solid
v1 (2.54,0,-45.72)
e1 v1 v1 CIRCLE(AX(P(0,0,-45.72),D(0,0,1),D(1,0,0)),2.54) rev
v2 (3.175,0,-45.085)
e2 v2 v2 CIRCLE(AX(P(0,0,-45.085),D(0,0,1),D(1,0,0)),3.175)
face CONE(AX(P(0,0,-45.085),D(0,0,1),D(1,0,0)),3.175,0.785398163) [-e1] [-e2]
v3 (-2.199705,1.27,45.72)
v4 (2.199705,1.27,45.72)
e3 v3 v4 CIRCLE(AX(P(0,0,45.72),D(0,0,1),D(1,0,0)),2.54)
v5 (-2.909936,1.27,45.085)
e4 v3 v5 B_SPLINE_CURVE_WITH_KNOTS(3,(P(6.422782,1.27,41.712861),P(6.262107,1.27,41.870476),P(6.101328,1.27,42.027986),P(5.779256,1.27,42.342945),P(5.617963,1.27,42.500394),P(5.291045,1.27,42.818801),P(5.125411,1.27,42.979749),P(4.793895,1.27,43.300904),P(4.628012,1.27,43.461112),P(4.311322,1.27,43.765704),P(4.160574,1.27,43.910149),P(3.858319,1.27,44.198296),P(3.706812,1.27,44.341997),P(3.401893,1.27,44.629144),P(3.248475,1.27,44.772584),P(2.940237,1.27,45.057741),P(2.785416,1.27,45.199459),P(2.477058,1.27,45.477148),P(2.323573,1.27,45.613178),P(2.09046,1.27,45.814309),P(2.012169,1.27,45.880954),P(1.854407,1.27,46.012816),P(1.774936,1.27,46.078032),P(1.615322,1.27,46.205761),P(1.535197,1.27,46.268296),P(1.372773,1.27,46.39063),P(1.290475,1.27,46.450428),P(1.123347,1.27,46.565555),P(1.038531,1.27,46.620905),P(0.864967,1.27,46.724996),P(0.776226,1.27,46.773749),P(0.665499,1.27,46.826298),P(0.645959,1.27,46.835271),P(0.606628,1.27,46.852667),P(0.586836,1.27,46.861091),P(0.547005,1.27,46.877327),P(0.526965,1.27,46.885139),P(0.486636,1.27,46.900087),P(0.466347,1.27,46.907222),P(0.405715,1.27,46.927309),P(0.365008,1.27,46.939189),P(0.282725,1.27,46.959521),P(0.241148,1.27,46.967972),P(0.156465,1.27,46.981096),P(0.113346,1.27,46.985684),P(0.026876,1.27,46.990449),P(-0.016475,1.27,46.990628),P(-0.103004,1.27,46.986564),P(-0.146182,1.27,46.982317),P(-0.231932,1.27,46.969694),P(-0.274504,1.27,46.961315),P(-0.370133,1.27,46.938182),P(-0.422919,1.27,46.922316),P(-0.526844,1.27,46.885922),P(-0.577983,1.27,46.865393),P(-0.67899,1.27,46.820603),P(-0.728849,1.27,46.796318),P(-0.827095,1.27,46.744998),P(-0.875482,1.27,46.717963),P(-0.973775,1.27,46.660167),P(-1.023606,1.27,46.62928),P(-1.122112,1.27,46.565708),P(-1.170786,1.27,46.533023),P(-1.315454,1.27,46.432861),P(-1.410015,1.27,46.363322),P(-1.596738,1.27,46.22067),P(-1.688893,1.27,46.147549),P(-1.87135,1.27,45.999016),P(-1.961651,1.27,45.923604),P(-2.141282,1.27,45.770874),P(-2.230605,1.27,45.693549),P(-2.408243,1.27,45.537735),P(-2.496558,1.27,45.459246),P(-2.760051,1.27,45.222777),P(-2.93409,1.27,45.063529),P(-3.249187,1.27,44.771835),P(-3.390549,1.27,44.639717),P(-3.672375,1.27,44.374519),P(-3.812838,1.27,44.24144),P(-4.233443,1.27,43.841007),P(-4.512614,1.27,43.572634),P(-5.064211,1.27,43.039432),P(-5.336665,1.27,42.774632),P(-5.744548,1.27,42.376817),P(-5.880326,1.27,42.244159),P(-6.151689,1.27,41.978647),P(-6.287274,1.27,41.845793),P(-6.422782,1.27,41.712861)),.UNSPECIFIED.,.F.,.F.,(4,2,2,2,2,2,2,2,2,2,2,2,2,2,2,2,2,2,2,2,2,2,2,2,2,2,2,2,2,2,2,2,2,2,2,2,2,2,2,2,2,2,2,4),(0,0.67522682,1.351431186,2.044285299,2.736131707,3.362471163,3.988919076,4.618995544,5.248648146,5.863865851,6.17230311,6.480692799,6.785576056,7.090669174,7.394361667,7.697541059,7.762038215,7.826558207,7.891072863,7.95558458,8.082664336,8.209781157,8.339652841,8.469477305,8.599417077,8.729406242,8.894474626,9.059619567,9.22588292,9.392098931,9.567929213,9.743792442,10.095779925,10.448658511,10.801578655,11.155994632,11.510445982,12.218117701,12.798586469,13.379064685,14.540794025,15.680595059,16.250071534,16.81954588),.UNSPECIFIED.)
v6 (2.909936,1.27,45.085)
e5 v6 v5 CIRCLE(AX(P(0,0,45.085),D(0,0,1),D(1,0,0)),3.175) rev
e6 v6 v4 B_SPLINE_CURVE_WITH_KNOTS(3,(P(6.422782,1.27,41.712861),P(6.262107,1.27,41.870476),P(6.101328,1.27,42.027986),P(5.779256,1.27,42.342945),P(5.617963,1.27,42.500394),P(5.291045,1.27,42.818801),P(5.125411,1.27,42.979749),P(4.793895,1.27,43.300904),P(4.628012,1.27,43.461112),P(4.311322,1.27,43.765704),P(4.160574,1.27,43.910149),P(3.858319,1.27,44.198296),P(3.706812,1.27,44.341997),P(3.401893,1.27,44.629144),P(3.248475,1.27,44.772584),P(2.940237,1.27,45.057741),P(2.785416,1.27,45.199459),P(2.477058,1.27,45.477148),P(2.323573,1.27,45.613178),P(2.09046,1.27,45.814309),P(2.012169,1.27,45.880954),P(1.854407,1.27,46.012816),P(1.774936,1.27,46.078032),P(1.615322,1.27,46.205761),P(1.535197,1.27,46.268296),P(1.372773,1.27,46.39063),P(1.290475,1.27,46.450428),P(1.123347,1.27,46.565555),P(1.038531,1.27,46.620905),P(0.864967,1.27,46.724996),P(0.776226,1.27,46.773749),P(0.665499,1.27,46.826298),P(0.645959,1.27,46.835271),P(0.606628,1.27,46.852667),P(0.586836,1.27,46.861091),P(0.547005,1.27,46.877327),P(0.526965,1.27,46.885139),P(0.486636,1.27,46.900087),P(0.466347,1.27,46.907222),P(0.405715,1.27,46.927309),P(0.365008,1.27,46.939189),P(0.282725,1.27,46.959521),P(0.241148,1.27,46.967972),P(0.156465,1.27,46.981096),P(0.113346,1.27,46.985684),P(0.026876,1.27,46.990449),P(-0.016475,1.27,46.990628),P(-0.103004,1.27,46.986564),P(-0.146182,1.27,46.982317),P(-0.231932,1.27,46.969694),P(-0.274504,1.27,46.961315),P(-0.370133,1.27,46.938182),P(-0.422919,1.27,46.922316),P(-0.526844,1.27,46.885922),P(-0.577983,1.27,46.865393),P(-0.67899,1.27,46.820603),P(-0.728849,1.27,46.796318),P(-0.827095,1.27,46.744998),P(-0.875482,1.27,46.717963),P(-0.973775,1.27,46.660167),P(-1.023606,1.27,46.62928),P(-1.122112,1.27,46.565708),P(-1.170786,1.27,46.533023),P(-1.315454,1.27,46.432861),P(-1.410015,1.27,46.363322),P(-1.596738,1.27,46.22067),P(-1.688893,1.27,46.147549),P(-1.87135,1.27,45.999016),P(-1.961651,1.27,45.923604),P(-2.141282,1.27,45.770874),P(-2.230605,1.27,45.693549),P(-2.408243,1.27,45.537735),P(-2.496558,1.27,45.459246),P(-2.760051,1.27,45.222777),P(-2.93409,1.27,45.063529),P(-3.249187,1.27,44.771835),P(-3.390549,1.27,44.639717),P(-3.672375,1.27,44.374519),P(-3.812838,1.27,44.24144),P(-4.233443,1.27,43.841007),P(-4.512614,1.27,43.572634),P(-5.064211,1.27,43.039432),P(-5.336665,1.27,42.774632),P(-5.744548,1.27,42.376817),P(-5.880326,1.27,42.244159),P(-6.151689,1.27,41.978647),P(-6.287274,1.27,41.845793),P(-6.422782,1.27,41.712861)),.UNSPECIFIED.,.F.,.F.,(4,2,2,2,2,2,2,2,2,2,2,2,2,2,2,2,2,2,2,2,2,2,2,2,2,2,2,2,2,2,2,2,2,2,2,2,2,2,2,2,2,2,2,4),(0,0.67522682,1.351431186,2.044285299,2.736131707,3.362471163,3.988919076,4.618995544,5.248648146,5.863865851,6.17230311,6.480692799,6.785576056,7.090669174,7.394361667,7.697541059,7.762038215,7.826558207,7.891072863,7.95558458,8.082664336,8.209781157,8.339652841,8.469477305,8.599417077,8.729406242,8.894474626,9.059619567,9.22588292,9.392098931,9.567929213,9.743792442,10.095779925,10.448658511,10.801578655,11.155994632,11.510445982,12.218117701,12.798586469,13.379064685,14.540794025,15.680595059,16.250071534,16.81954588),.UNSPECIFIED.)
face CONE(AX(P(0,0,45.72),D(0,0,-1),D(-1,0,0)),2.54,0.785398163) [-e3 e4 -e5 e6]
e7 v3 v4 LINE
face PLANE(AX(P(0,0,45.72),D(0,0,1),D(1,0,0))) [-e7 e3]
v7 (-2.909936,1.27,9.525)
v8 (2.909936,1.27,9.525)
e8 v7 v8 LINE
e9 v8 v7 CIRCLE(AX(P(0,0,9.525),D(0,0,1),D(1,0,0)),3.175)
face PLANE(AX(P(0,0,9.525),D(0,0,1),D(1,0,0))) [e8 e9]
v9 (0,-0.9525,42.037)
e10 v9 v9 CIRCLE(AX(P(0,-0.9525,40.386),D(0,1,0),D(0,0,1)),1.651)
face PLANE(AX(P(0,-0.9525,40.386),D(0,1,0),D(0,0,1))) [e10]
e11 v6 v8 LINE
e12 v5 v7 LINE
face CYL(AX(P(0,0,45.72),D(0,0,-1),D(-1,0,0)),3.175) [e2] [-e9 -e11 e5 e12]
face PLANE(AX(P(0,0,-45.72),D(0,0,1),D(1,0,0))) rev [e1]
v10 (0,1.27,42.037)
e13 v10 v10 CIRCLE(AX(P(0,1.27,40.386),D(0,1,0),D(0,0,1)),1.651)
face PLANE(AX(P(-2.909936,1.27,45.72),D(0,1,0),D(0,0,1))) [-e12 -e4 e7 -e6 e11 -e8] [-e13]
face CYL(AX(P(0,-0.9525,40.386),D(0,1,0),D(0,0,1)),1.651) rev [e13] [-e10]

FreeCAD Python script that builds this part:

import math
import FreeCAD as App
import Part
import Sketcher
from FreeCAD import Vector
Q = App.Units.Quantity


def edges_at(feature, points):
    """Names of the edges that pass closest to the given points."""
    edges = feature.Shape.Edges
    near = lambda p: min(range(len(edges)), key=lambda i: edges[i].distToShape(Part.Vertex(*p))[0])
    return sorted({f"Edge{near(p) + 1}" for p in points})

doc = App.newDocument("Part")
body = doc.addObject("PartDesign::Body", "Body")

# Sketch on XY plane
sketch1 = body.newObject("Sketcher::SketchObject", "Sketch")
sketch1.AttachmentSupport = (doc.getObject("XY_Plane"), [""])
sketch1.MapMode = "FlatFace"
sketch1.addGeometry(Part.Circle(Vector(0, 0, 0), Vector(0, 0, 1), 3.2), False)
sketch1.addConstraint([
    Sketcher.Constraint("Coincident", 0, 3, -1, 1),
    Sketcher.Constraint("Diameter", 0, Q("0.25 in")),
])
pad1 = body.newObject("PartDesign::Pad", "Pad")
pad1.Profile = sketch1
pad1.Length = Q("3.6 in")
pad1.Midplane = True
doc.recompute()

chamfer = body.newObject("PartDesign::Chamfer", "Chamfer")
chamfer.Base = (pad1, edges_at(pad1, [(-3.175, 0, -45.72), (-3.175, 0, 45.72)]))
chamfer.Size = Q("0.025 in")

# Sketch on XY plane
sketch2 = body.newObject("Sketcher::SketchObject", "Sketch001")
sketch2.AttachmentSupport = (doc.getObject("XY_Plane"), [""])
sketch2.MapMode = "FlatFace"
sketch2.AttachmentOffset = App.Placement(Vector(0, 0, 0.375 * 25.4), App.Rotation())
sketch2.addGeometry([
    Part.LineSegment(Vector(-2.9, 1.3, 0), Vector(2.9, 1.3, 0)),
    Part.ArcOfCircle(Part.Circle(Vector(0, 0, 0), Vector(0, 0, 1), 3.2), math.radians(24), math.radians(156)),
], False)
sketch2.addConstraint([
    Sketcher.Constraint("Coincident", 0, 1, 1, 2),
    Sketcher.Constraint("Coincident", 1, 1, 0, 2),
    Sketcher.Constraint("Horizontal", 0),
    Sketcher.Constraint("Coincident", 1, 3, -1, 1),
    Sketcher.Constraint("Radius", 1, Q("0.125 in")),
    Sketcher.Constraint("DistanceY", -1, 1, 0, 1, Q("0.05 in")),
])
pocket1 = body.newObject("PartDesign::Pocket", "Pocket")
pocket1.Profile = sketch2
pocket1.Type = "ThroughAll"
pocket1.Reversed = True

# Sketch on XZ plane
sketch3 = body.newObject("Sketcher::SketchObject", "Sketch002")
sketch3.AttachmentSupport = (doc.getObject("XZ_Plane"), [""])
sketch3.MapMode = "FlatFace"
sketch3.AttachmentOffset = App.Placement(Vector(0, 0, -0.05 * 25.4), App.Rotation())
sketch3.addGeometry(Part.Circle(Vector(0, 40.4, 0), Vector(0, 0, 1), 1.7), False)
sketch3.addConstraint([
    Sketcher.Constraint("PointOnObject", 0, 3, -2),
    Sketcher.Constraint("Diameter", 0, Q("0.13 in")),
    Sketcher.Constraint("DistanceY", -1, 1, 0, 3, Q("1.59 in")),
])
pocket2 = body.newObject("PartDesign::Pocket", "Pocket001")
pocket2.Profile = sketch3
pocket2.Length = Q("0.0875 in")
pocket2.Reversed = True

doc.recompute()
